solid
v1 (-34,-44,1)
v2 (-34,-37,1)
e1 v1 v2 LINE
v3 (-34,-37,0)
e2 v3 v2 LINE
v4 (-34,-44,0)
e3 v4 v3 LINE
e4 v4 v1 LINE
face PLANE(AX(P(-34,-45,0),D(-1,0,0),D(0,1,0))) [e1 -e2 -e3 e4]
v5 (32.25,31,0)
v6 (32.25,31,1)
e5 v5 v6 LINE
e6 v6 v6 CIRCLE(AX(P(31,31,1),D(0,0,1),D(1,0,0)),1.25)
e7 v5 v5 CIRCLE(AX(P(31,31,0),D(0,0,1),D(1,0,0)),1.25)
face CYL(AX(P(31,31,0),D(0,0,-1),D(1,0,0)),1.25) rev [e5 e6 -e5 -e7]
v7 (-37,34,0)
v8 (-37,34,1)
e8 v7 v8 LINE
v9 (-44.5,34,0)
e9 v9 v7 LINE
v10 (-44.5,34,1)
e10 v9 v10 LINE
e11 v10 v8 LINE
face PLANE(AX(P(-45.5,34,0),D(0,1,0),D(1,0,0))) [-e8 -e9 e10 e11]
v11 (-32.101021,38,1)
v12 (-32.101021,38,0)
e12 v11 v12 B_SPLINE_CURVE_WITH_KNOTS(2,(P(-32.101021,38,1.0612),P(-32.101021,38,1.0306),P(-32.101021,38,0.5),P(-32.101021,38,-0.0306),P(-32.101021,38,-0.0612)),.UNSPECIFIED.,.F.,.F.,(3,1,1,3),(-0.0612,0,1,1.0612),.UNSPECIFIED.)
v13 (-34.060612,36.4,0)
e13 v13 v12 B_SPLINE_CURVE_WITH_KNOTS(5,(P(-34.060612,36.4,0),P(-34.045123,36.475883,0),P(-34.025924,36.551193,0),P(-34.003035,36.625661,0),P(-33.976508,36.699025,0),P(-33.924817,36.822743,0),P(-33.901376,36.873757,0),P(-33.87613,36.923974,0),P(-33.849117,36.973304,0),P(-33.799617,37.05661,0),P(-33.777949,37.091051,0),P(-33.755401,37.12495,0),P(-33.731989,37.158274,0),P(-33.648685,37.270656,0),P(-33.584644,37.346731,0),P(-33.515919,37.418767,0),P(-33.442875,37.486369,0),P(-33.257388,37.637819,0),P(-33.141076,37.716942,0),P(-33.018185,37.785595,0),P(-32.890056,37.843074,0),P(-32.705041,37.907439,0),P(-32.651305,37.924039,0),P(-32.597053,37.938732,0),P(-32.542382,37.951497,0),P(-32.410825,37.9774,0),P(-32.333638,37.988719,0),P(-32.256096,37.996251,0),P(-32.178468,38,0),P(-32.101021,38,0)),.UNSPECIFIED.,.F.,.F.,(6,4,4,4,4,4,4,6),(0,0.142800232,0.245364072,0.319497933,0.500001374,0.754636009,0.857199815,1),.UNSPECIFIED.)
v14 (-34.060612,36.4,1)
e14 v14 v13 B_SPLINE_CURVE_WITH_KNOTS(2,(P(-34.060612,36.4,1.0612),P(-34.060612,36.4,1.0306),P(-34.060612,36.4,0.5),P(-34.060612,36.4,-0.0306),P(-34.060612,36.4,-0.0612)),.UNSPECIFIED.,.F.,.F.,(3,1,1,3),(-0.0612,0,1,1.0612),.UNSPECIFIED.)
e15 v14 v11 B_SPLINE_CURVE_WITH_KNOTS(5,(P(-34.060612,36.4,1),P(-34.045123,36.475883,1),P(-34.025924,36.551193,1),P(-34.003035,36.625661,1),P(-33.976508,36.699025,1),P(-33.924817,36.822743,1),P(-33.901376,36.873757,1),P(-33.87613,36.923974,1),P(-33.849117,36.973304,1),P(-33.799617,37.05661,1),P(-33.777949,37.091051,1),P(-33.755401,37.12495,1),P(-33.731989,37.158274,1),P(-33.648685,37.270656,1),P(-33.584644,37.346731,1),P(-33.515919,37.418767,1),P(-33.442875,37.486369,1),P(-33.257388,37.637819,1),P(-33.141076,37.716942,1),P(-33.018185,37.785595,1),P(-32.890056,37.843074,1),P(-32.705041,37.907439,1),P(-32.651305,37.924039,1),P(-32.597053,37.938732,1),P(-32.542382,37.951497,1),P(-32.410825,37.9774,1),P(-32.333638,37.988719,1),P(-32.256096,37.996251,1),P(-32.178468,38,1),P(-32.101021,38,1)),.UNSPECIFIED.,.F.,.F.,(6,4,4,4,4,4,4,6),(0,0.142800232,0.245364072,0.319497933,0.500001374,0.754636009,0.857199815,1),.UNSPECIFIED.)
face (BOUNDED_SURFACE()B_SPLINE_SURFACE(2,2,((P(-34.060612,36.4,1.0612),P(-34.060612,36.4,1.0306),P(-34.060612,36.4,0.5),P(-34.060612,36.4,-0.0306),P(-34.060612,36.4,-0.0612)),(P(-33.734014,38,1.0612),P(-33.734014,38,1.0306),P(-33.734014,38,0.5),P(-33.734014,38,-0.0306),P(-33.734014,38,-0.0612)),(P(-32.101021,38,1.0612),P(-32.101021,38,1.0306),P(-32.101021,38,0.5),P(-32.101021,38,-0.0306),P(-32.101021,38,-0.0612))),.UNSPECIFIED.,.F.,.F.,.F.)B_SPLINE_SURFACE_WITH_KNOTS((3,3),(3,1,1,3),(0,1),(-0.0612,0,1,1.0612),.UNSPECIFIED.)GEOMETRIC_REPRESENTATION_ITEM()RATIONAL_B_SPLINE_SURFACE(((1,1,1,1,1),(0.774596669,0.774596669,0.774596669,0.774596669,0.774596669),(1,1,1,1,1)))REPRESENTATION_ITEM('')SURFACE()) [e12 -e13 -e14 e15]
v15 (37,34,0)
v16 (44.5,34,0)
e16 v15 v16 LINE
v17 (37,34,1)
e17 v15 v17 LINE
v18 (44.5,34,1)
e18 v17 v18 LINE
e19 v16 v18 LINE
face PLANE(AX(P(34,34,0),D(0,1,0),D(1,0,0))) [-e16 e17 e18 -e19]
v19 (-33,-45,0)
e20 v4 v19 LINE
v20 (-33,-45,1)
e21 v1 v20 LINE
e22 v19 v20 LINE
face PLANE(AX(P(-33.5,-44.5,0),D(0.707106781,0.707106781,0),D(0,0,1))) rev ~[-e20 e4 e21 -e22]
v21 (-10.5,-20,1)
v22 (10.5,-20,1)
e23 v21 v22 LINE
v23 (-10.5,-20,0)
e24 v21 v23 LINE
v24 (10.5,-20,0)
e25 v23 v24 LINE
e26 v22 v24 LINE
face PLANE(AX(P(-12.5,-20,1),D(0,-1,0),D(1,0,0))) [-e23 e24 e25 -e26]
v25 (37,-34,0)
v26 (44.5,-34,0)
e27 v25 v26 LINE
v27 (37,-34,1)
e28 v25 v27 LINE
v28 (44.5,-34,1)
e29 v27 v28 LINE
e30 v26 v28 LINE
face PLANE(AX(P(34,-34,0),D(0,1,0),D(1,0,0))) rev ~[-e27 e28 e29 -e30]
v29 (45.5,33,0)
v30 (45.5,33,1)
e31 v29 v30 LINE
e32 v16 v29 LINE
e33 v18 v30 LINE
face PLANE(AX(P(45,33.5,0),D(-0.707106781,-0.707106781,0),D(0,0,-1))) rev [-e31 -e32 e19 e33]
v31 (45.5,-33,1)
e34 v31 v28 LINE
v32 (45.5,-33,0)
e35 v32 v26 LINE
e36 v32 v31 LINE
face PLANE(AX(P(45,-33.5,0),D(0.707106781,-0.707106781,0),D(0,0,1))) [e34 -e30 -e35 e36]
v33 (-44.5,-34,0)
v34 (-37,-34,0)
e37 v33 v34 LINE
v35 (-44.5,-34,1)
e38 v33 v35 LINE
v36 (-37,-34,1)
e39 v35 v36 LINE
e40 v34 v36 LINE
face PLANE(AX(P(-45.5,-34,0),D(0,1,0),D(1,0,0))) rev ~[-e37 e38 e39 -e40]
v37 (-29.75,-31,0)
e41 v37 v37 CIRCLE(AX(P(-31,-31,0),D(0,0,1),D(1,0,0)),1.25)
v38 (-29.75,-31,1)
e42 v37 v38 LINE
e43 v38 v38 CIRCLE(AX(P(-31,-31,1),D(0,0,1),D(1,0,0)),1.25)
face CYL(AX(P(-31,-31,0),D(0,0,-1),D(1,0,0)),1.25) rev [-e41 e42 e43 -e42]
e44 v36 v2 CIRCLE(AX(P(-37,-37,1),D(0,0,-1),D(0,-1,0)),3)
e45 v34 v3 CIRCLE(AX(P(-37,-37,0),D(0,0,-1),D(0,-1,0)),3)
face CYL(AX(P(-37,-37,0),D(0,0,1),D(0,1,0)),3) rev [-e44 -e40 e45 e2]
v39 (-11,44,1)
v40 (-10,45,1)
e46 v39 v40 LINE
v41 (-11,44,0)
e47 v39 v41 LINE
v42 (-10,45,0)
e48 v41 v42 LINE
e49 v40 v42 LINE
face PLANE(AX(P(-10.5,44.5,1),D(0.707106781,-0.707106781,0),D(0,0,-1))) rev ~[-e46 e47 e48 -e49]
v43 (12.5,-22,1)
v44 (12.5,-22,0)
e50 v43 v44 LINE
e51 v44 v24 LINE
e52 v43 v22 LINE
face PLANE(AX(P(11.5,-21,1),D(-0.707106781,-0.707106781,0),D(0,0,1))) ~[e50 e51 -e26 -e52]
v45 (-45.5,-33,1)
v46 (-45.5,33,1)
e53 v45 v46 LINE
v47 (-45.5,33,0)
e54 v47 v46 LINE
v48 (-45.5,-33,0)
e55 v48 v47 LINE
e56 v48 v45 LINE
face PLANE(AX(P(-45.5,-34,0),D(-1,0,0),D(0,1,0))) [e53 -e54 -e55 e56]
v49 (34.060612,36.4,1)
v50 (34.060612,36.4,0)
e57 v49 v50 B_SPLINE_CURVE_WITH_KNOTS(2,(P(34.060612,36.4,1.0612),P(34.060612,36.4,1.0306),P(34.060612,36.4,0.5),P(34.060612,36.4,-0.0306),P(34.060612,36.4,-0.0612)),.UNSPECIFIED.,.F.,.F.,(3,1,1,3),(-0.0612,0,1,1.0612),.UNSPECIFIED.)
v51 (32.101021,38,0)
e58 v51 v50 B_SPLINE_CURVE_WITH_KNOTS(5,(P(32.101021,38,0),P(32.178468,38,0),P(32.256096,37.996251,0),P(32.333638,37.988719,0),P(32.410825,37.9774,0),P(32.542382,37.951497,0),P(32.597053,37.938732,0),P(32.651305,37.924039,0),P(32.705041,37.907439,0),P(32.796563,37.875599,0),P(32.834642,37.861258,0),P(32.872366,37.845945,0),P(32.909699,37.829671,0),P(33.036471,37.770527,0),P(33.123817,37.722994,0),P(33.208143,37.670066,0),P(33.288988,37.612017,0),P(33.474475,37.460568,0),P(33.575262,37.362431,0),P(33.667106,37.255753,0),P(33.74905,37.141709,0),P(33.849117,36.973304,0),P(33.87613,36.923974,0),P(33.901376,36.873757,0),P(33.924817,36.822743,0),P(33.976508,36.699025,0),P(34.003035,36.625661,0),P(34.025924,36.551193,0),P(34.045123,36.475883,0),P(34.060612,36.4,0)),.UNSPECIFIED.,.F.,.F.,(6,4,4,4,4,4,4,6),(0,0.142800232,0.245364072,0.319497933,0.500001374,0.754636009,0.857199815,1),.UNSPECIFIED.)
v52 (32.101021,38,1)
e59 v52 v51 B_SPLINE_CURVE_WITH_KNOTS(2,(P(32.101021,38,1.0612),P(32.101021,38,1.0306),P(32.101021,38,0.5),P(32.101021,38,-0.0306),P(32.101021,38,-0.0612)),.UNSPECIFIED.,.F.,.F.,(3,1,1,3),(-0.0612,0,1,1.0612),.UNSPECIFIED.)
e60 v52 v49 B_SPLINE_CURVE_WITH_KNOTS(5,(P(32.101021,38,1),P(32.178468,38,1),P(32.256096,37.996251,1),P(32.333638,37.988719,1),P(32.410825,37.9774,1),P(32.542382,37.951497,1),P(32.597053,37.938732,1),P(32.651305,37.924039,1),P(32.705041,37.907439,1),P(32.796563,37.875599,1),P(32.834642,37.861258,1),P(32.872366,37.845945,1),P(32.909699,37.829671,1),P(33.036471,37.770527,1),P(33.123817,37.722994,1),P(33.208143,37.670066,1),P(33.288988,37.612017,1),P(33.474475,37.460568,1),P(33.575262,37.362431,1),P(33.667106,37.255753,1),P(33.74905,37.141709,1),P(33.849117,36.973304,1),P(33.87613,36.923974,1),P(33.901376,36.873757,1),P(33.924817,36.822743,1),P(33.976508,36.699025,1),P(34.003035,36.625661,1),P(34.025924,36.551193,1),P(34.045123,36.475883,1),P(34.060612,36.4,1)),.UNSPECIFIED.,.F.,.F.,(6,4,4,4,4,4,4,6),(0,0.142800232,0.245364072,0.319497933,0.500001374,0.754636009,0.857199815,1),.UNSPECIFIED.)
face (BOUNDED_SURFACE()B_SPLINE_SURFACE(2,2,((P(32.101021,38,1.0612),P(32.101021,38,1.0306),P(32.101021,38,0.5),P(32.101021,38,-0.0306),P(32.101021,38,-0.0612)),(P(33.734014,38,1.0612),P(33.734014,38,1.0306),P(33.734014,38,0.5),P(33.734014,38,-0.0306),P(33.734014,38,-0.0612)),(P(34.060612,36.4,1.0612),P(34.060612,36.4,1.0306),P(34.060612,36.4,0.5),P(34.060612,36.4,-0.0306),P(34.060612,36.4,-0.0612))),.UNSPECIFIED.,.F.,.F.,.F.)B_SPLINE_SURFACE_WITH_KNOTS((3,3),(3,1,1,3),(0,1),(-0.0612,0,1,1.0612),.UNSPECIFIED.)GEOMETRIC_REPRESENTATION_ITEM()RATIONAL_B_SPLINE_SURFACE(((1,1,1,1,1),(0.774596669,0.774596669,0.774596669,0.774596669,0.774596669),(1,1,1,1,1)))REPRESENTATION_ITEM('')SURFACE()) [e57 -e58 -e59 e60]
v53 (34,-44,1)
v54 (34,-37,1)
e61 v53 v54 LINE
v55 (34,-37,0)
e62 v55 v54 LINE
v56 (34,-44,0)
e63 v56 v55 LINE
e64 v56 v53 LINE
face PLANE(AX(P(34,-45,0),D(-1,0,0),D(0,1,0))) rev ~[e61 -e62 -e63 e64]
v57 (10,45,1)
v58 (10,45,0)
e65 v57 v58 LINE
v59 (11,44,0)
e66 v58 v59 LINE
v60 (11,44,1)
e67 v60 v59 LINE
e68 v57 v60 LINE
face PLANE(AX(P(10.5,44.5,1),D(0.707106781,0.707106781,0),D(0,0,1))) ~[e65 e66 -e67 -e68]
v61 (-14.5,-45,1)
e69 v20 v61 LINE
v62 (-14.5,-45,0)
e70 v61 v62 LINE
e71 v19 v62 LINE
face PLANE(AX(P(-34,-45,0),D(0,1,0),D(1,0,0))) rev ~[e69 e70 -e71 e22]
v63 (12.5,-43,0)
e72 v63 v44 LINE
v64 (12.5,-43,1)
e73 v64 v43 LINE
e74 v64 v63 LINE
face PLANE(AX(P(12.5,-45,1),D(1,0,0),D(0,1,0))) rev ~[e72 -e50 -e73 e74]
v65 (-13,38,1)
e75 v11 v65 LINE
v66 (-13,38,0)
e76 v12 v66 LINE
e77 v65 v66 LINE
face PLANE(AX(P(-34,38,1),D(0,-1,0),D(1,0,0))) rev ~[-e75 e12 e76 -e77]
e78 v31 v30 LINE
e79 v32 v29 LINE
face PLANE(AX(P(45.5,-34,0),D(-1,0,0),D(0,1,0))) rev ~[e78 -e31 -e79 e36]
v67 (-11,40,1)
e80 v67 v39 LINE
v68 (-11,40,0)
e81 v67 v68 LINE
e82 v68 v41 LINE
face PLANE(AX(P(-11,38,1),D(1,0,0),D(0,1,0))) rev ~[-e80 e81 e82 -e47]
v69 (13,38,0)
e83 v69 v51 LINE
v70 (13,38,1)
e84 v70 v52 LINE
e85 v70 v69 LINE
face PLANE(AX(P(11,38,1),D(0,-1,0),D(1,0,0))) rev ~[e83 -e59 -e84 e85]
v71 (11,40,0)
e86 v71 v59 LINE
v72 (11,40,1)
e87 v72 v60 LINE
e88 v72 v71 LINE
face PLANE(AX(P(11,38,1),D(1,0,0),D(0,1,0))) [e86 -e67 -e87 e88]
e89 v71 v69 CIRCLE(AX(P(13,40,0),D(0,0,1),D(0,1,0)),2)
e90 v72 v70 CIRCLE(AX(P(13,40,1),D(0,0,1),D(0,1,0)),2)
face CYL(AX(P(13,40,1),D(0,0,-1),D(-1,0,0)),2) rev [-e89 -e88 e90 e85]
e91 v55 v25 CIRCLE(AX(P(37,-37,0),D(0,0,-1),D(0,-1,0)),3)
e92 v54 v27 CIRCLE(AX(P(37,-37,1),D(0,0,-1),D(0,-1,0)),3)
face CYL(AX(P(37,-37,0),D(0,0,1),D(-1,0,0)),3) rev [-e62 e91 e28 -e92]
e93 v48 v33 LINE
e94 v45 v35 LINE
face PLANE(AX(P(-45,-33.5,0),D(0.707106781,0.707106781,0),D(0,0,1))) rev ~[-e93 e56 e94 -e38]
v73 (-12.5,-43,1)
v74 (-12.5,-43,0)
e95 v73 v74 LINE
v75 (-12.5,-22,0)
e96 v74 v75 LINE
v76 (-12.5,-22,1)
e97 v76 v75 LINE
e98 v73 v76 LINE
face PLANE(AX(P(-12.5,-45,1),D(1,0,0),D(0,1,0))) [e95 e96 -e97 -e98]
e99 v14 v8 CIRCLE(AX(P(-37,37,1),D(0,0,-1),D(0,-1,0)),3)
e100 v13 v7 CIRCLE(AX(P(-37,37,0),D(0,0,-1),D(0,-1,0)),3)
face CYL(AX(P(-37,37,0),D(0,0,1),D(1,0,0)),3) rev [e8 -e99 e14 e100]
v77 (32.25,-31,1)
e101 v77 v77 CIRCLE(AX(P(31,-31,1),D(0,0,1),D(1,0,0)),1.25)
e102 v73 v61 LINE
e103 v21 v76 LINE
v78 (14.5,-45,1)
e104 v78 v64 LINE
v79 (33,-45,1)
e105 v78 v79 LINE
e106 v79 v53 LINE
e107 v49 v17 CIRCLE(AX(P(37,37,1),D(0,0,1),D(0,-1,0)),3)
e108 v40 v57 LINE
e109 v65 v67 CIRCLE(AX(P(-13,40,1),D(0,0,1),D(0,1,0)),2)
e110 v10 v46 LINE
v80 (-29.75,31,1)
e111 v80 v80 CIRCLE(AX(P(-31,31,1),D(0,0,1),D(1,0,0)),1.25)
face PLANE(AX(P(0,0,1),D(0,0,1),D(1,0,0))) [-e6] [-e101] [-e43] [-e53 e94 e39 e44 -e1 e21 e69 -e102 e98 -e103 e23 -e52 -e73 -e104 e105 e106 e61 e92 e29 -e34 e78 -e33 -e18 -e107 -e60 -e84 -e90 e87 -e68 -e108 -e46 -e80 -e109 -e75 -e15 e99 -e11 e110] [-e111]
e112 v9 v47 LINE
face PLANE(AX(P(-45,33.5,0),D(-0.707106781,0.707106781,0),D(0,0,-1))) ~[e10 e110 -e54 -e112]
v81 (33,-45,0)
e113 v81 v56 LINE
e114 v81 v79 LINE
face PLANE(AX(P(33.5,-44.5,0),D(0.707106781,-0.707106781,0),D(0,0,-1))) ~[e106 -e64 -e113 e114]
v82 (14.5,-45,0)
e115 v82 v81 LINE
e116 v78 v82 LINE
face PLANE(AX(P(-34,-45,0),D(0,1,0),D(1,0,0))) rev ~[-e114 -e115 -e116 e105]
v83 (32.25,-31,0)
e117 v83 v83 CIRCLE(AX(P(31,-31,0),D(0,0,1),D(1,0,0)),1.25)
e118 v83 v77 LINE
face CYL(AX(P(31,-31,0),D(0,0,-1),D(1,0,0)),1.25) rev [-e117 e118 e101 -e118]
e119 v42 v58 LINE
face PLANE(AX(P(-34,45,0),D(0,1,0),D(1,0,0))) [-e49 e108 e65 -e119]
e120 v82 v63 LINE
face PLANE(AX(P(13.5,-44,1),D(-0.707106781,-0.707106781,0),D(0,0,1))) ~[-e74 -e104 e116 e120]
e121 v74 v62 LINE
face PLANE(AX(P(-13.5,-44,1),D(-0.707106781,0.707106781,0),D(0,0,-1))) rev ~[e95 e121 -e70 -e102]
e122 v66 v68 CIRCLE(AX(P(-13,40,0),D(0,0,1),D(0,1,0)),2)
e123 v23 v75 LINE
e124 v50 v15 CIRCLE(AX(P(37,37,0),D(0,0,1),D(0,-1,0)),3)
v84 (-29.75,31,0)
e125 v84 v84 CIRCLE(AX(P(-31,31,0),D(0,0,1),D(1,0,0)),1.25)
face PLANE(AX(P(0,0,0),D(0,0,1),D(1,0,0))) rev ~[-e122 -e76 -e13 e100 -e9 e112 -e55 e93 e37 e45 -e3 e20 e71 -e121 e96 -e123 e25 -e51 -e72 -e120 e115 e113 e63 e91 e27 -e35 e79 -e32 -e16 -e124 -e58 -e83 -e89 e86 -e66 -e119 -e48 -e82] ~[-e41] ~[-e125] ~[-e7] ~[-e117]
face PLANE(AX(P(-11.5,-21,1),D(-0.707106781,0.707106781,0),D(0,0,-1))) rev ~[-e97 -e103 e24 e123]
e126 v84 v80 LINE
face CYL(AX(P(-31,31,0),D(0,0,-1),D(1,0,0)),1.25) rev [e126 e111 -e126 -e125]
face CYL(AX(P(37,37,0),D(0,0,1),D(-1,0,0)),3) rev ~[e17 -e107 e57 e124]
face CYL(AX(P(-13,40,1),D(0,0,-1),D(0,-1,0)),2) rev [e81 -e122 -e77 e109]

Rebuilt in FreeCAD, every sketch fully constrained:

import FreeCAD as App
import Part
import Sketcher


def edges_at(feature, points):
    """Names of the edges that pass closest to the given points."""
    edges = feature.Shape.Edges
    near = lambda p: min(range(len(edges)), key=lambda i: edges[i].distToShape(Part.Vertex(*p))[0])
    return sorted({f"Edge{near(p) + 1}" for p in points})


def add_polygon(sketch, points):
    """Adds a closed chain of lines whose ends are joined by coincident constraints."""
    first, n = sketch.GeometryCount, len(points)
    for a, b in zip(points, points[1:] + points[:1]):
        sketch.addGeometry(Part.LineSegment(App.Vector(*a, 0), App.Vector(*b, 0)), False)
    for i in range(n):
        sketch.addConstraint(Sketcher.Constraint("Coincident", first + i, 2, first + (i + 1) % n, 1))

doc = App.newDocument("Part")
body = doc.addObject("PartDesign::Body", "Body")

sketch1 = doc.addObject("Sketcher::SketchObject", "Sketch")
body.addObject(sketch1)
sketch1.AttachmentSupport = (doc.XY_Plane, [""])
sketch1.MapMode = "FlatFace"
add_polygon(sketch1, [(34, 34), (34, 45), (-34, 45), (-34, 34), (-45.5, 34), (-45.5, -34), (-34, -34), (-34, -45), (34, -45), (34, -34), (45.5, -34), (45.5, 34)])
sketch1.addGeometry(Part.Circle(App.Vector(-31, -31, 0), App.Vector(0, 0, 1), 1.2), False)
sketch1.addGeometry(Part.Circle(App.Vector(31, -31, 0), App.Vector(0, 0, 1), 1.2), False)
sketch1.addGeometry(Part.Circle(App.Vector(-31, 31, 0), App.Vector(0, 0, 1), 1.2), False)
sketch1.addGeometry(Part.Circle(App.Vector(31, 31, 0), App.Vector(0, 0, 1), 1.2), False)
sketch1.addConstraint([
    Sketcher.Constraint("Vertical", 0),
    Sketcher.Constraint("Horizontal", 1),
    Sketcher.Constraint("Vertical", 2),
    Sketcher.Constraint("Horizontal", 3),
    Sketcher.Constraint("Vertical", 4),
    Sketcher.Constraint("Horizontal", 5),
    Sketcher.Constraint("Vertical", 6),
    Sketcher.Constraint("Horizontal", 7),
    Sketcher.Constraint("Vertical", 8),
    Sketcher.Constraint("Horizontal", 9),
    Sketcher.Constraint("Vertical", 10),
    Sketcher.Constraint("Horizontal", 11),
    Sketcher.Constraint("Equal", 12, 13),
    Sketcher.Constraint("Equal", 13, 14),
    Sketcher.Constraint("Equal", 14, 15),
    Sketcher.Constraint("Symmetric", 13, 3, 14, 3, -1, 1),
    Sketcher.Constraint("Symmetric", 12, 3, 15, 3, -1, 1),
    Sketcher.Constraint("Symmetric", 0, 2, 6, 2, -1, 1),
    Sketcher.Constraint("Symmetric", 2, 2, 8, 2, -1, 1),
    Sketcher.Constraint("Symmetric", 4, 2, 10, 2, -1, 1),
    Sketcher.Constraint("Symmetric", 12, 3, 13, 3, -2),
    Sketcher.Constraint("Symmetric", 5, 2, 8, 2, -2),
    Sketcher.Constraint("Equal", 7, 4),
    Sketcher.Constraint("Diameter", 12, 2.5),
    Sketcher.Constraint("DistanceX", 1, 2, 1, 1, 68.0),
    Sketcher.Constraint("DistanceY", 0, 1, 0, 2, 11.0),
    Sketcher.Constraint("DistanceX", 3, 2, 3, 1, 11.5),
    Sketcher.Constraint("DistanceX", 12, 3, -1, 1, 31.0),
    Sketcher.Constraint("DistanceY", 12, 3, -1, 1, 31.0),
])
pad1 = doc.addObject("PartDesign::Pad", "Pad")
body.addObject(pad1)
pad1.Profile = sketch1
pad1.Length = 1
doc.recompute()

fillet = doc.addObject("PartDesign::Fillet", "Fillet")
body.addObject(fillet)
fillet.Base = (pad1, edges_at(pad1, [
    (-34, -34, 0.5),
    (-34, 34, 0.5),
    (34, 34, 0.5),
    (34, -34, 0.5),
]))
fillet.Radius = 3

sketch2 = doc.addObject("Sketcher::SketchObject", "Sketch001")
body.addObject(sketch2)
sketch2.AttachmentSupport = (doc.XY_Plane, [""])
sketch2.MapMode = "FlatFace"
sketch2.AttachmentOffset = App.Placement(App.Vector(0, 0, 1), App.Rotation())
add_polygon(sketch2, [(-12, -20), (-12, -45), (12, -45), (12, -20)])
sketch2.addConstraint([
    Sketcher.Constraint("Vertical", 0),
    Sketcher.Constraint("Horizontal", 1),
    Sketcher.Constraint("Vertical", 2),
    Sketcher.Constraint("Horizontal", 3),
    Sketcher.Constraint("Equal", 3, 0),
    Sketcher.Constraint("DistanceX", 1, 1, 1, 2, 25.0),
    Sketcher.Constraint("DistanceY", 0, 2, -1, 1, 45.0),
    Sketcher.Constraint("DistanceX", 0, 2, -1, 1, 12.5),
])
pocket1 = doc.addObject("PartDesign::Pocket", "Pocket")
body.addObject(pocket1)
pocket1.Profile = sketch2
pocket1.Type = "ThroughAll"
doc.recompute()

chamfer = doc.addObject("PartDesign::Chamfer", "Chamfer")
body.addObject(chamfer)
chamfer.Base = (pocket1, edges_at(pocket1, [
    (-12.5, -45, 0.5),
    (-12.5, -20, 0.5),
    (12.5, -20, 0.5),
    (12.5, -45, 0.5),
]))
chamfer.Size = 2

sketch3 = doc.addObject("Sketcher::SketchObject", "Sketch002")
body.addObject(sketch3)
sketch3.AttachmentSupport = (doc.XY_Plane, [""])
sketch3.MapMode = "FlatFace"
sketch3.AttachmentOffset = App.Placement(App.Vector(0, 0, 1), App.Rotation())
add_polygon(sketch3, [(-34, 45), (-34, 38), (-11, 38), (-11, 45)])
add_polygon(sketch3, [(11, 45), (11, 38), (34, 38), (34, 45)])
sketch3.addConstraint([
    Sketcher.Constraint("Vertical", 0),
    Sketcher.Constraint("Horizontal", 1),
    Sketcher.Constraint("Vertical", 2),
    Sketcher.Constraint("Horizontal", 3),
    Sketcher.Constraint("Vertical", 4),
    Sketcher.Constraint("Horizontal", 5),
    Sketcher.Constraint("Vertical", 6),
    Sketcher.Constraint("Horizontal", 7),
    Sketcher.Constraint("Symmetric", 1, 2, 4, 2, -2),
    Sketcher.Constraint("Symmetric", 3, 2, 6, 2, -2),
    Sketcher.Constraint("DistanceX", 1, 1, 1, 2, 23.0),
    Sketcher.Constraint("DistanceY", 0, 2, 0, 1, 7.0),
    Sketcher.Constraint("DistanceX", 0, 2, -1, 1, 34.0),
    Sketcher.Constraint("DistanceY", -1, 1, 0, 2, 38.0),
])
pocket2 = doc.addObject("PartDesign::Pocket", "Pocket001")
body.addObject(pocket2)
pocket2.Profile = sketch3
pocket2.Type = "ThroughAll"
doc.recompute()

fillet2 = doc.addObject("PartDesign::Fillet", "Fillet001")
body.addObject(fillet2)
fillet2.Base = (pocket2, edges_at(pocket2, [
    (11, 38, 0.5),
    (34, 38, 0.5),
    (-11, 38, 0.5),
    (-34, 38, 0.5),
]))
fillet2.Radius = 2
doc.recompute()

chamfer2 = doc.addObject("PartDesign::Chamfer", "Chamfer001")
body.addObject(chamfer2)
chamfer2.Base = (fillet2, edges_at(fillet2, [
    (-11, 45, 0.5),
    (11, 45, 0.5),
    (34, -45, 0.5),
    (-34, -45, 0.5),
    (-45.5, -34, 0.5),
    (-45.5, 34, 0.5),
    (45.5, 34, 0.5),
    (45.5, -34, 0.5),
]))
chamfer2.Size = 1

doc.recompute()
